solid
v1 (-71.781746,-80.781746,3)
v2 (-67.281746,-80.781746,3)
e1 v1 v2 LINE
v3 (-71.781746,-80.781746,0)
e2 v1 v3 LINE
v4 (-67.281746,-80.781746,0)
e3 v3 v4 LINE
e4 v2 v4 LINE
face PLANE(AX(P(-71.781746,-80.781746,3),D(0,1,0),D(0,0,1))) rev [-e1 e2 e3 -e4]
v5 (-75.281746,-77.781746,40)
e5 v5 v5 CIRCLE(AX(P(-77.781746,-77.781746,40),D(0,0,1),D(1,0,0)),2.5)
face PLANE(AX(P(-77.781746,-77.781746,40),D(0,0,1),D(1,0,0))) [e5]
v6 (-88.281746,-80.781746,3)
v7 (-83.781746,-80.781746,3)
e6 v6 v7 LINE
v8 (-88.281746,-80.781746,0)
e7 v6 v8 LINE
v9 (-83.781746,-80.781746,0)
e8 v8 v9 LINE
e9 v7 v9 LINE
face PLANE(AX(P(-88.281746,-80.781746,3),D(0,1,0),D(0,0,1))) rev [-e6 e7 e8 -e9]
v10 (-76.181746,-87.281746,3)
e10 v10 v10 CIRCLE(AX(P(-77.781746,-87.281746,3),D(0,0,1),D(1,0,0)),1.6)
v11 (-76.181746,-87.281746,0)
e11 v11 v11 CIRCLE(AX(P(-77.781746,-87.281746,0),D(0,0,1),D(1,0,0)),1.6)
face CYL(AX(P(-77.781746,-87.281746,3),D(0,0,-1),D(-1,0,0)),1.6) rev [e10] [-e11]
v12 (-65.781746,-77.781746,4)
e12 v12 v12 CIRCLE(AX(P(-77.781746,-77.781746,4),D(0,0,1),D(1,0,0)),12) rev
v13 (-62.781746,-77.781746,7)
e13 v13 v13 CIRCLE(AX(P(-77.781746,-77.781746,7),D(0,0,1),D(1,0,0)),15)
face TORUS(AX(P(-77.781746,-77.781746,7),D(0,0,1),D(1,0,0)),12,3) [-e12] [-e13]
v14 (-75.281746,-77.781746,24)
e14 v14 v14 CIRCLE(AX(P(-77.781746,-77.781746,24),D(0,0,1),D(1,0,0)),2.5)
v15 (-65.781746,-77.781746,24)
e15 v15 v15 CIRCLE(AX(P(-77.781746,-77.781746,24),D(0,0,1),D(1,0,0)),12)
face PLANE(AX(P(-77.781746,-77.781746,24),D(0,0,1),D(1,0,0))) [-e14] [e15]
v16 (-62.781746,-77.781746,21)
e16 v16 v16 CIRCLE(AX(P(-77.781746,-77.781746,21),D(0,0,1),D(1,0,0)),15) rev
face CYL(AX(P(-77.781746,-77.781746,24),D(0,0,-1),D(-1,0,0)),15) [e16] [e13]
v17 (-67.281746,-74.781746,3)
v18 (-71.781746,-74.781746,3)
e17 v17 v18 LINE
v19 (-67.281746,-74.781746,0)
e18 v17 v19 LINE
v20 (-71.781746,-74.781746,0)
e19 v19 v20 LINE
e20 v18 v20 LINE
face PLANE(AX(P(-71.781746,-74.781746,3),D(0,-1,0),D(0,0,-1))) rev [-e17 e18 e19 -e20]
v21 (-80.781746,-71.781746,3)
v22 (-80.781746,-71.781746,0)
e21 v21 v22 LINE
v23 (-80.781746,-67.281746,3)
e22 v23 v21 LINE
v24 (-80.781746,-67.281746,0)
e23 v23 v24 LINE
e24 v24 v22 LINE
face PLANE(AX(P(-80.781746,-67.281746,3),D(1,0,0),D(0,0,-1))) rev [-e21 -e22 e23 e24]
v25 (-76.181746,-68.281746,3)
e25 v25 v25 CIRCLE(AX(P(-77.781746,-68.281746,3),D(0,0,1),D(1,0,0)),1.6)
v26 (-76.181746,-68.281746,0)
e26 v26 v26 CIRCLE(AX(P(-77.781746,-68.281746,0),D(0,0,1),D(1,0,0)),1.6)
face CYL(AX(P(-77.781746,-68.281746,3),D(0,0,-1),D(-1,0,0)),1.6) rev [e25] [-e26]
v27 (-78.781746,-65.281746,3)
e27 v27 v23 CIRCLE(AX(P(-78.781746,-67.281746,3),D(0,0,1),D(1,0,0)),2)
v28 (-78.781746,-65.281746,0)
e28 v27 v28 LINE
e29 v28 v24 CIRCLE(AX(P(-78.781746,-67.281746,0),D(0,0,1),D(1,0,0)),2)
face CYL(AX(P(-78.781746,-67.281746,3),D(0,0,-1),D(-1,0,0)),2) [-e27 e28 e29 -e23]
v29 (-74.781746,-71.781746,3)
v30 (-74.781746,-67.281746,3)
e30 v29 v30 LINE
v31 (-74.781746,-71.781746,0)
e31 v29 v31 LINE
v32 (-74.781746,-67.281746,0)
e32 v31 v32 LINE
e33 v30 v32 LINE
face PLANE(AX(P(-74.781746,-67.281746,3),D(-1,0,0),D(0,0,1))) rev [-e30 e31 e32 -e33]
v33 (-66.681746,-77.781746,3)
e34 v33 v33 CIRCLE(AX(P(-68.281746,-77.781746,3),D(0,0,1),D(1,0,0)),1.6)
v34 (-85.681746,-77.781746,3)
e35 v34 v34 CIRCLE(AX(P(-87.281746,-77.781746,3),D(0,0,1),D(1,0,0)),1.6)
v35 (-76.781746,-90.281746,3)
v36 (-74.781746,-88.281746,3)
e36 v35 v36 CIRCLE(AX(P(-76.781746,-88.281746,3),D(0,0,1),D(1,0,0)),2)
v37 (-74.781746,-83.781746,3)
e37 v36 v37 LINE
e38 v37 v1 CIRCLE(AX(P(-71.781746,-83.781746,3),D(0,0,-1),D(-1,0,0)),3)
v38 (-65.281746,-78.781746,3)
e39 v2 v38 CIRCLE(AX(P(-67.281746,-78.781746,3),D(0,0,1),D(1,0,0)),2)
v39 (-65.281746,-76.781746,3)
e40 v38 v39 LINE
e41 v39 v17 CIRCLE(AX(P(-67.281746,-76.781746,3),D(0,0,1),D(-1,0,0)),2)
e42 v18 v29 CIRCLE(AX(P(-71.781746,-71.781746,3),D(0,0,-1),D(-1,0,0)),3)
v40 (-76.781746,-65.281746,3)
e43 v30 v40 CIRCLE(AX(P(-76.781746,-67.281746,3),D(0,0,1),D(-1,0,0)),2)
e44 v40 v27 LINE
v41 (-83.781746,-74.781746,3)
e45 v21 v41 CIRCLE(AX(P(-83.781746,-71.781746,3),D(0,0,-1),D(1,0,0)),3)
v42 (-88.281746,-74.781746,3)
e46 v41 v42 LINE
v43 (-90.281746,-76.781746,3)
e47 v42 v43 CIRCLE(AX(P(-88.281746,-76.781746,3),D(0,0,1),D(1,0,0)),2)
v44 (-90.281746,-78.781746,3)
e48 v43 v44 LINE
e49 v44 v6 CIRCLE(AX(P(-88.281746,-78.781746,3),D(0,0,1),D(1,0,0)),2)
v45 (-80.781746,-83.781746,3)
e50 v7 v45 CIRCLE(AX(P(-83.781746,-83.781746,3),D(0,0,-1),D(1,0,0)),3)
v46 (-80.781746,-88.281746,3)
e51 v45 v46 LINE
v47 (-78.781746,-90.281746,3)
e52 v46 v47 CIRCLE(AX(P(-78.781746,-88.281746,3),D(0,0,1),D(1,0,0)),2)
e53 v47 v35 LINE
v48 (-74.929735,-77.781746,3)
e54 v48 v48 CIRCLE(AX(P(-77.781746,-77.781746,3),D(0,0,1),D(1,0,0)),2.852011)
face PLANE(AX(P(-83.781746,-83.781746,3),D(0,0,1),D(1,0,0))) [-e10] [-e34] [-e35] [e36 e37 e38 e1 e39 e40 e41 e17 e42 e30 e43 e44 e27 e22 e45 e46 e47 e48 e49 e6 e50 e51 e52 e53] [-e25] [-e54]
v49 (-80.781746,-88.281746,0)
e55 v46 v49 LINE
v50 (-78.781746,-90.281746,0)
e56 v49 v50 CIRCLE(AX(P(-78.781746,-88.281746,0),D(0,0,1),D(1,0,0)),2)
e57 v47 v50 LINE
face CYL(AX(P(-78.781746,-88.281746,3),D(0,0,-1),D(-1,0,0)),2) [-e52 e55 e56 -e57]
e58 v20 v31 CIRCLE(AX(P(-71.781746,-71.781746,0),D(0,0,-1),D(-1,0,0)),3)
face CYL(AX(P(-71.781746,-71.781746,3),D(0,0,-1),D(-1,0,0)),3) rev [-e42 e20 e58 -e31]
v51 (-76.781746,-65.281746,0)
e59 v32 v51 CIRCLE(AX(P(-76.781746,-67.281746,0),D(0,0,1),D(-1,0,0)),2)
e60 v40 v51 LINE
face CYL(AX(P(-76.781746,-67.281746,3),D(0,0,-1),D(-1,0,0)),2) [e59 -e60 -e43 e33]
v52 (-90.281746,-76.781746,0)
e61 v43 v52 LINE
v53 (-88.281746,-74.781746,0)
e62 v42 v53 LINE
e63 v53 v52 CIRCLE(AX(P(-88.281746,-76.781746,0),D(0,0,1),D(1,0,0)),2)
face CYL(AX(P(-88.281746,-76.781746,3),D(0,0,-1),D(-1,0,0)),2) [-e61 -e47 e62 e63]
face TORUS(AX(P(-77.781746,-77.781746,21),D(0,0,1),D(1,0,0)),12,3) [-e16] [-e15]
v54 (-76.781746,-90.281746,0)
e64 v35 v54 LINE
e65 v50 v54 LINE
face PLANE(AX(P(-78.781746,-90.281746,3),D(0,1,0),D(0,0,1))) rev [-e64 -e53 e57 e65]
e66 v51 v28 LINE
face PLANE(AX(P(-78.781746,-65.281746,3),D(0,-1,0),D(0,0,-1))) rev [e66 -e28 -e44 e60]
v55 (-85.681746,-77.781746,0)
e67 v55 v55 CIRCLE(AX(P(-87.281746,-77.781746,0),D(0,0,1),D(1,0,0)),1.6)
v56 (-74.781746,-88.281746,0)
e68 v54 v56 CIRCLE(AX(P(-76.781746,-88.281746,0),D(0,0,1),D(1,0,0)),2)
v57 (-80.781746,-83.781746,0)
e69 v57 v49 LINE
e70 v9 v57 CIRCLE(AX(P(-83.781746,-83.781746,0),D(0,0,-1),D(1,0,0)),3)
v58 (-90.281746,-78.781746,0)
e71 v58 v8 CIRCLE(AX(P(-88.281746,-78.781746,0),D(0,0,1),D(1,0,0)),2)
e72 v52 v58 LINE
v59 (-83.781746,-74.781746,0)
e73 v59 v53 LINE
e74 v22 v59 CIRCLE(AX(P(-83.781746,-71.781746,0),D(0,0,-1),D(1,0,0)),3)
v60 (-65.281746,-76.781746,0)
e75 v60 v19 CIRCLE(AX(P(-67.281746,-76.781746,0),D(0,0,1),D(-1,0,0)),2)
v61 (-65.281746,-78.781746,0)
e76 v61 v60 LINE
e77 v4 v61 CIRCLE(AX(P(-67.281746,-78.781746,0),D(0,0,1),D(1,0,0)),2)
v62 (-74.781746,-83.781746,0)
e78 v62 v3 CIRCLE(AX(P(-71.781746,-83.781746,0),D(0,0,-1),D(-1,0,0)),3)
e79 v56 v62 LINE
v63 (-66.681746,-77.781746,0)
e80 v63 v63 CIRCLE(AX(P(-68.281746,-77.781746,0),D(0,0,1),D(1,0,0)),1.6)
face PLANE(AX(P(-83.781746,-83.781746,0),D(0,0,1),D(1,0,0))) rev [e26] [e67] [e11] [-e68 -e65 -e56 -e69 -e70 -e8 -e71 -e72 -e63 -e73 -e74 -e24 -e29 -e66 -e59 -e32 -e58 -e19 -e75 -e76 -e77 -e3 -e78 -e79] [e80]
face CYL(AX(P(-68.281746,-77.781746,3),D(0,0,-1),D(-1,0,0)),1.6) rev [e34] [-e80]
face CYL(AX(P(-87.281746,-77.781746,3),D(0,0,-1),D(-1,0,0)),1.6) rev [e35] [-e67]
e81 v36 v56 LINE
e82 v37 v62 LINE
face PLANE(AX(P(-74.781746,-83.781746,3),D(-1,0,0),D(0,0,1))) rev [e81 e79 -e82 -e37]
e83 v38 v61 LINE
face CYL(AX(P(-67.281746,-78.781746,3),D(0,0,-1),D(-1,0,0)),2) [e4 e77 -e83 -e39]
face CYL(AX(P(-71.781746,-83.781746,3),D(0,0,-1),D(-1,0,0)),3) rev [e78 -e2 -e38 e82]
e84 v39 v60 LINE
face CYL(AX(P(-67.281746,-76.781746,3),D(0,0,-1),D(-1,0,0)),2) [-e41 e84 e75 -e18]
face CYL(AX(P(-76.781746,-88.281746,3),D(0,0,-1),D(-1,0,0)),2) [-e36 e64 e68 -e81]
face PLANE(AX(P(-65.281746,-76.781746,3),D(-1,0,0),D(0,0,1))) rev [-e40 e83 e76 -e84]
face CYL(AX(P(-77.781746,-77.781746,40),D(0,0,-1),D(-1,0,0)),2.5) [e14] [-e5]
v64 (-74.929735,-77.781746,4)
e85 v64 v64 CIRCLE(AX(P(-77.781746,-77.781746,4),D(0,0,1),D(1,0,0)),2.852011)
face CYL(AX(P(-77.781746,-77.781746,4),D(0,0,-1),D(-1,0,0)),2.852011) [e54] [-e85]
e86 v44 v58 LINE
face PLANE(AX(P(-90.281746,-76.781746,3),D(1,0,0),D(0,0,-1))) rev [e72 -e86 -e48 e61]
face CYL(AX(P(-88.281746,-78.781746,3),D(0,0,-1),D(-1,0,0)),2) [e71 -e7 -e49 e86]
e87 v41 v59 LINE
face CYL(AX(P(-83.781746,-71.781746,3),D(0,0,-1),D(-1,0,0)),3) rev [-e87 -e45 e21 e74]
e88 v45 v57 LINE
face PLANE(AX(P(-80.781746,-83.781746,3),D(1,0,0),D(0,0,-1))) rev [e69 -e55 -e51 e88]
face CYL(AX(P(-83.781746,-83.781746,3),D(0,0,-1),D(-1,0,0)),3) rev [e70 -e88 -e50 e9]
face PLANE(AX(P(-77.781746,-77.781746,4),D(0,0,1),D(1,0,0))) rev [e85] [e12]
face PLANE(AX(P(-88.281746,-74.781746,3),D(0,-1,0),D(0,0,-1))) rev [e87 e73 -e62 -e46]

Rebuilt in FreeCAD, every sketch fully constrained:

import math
import FreeCAD as App
import Part
import Sketcher

V = App.Vector


def edges_at(feature, points):
    """Names of the edges that pass closest to the given points."""
    edges = feature.Shape.Edges
    near = lambda p: min(range(len(edges)), key=lambda i: edges[i].distToShape(Part.Vertex(*p))[0])
    return sorted({f"Edge{near(p) + 1}" for p in points})

doc = App.newDocument("Part")
body = doc.addObject("PartDesign::Body", "Body")

# Sketch on XY plane
sketch1 = body.newObject("Sketcher::SketchObject", "Sketch")
sketch1.AttachmentSupport = (doc.getObject("XY_Plane"), [""])
sketch1.MapMode = "FlatFace"
sketch1.addGeometry(Part.LineSegment(V(-67.3, -74.8, 0), V(-71.8, -74.8, 0)), False)
sketch1.addGeometry(Part.ArcOfCircle(Part.Circle(V(-71.8, -71.8, 0), V(0, 0, 1), 3), math.radians(-180), math.radians(-90)), False)
sketch1.addGeometry(Part.LineSegment(V(-74.8, -71.8, 0), V(-74.8, -67.3, 0)), False)
sketch1.addGeometry(Part.ArcOfCircle(Part.Circle(V(-76.8, -67.3, 0), V(0, 0, 1), 2), math.radians(0), math.radians(90)), False)
sketch1.addGeometry(Part.LineSegment(V(-76.8, -65.3, 0), V(-78.8, -65.3, 0)), False)
sketch1.addGeometry(Part.ArcOfCircle(Part.Circle(V(-78.8, -67.3, 0), V(0, 0, 1), 2), math.radians(90), math.radians(180)), False)
sketch1.addGeometry(Part.LineSegment(V(-80.8, -67.3, 0), V(-80.8, -71.8, 0)), False)
sketch1.addGeometry(Part.ArcOfCircle(Part.Circle(V(-83.8, -71.8, 0), V(0, 0, 1), 3), math.radians(-90), math.radians(0)), False)
sketch1.addGeometry(Part.LineSegment(V(-83.8, -74.8, 0), V(-88.3, -74.8, 0)), False)
sketch1.addGeometry(Part.ArcOfCircle(Part.Circle(V(-88.3, -76.8, 0), V(0, 0, 1), 2), math.radians(90), math.radians(180)), False)
sketch1.addGeometry(Part.LineSegment(V(-90.3, -76.8, 0), V(-90.3, -78.8, 0)), False)
sketch1.addGeometry(Part.ArcOfCircle(Part.Circle(V(-88.3, -78.8, 0), V(0, 0, 1), 2), math.radians(-180), math.radians(-90)), False)
sketch1.addGeometry(Part.LineSegment(V(-88.3, -80.8, 0), V(-83.8, -80.8, 0)), False)
sketch1.addGeometry(Part.ArcOfCircle(Part.Circle(V(-83.8, -83.8, 0), V(0, 0, 1), 3), math.radians(0), math.radians(90)), False)
sketch1.addGeometry(Part.LineSegment(V(-80.8, -83.8, 0), V(-80.8, -88.3, 0)), False)
sketch1.addGeometry(Part.ArcOfCircle(Part.Circle(V(-78.8, -88.3, 0), V(0, 0, 1), 2), math.radians(-180), math.radians(-90)), False)
sketch1.addGeometry(Part.LineSegment(V(-78.8, -90.3, 0), V(-76.8, -90.3, 0)), False)
sketch1.addGeometry(Part.ArcOfCircle(Part.Circle(V(-76.8, -88.3, 0), V(0, 0, 1), 2), math.radians(-90), math.radians(0)), False)
sketch1.addGeometry(Part.LineSegment(V(-74.8, -88.3, 0), V(-74.8, -83.8, 0)), False)
sketch1.addGeometry(Part.ArcOfCircle(Part.Circle(V(-71.8, -83.8, 0), V(0, 0, 1), 3), math.radians(90), math.radians(180)), False)
sketch1.addGeometry(Part.LineSegment(V(-71.8, -80.8, 0), V(-67.3, -80.8, 0)), False)
sketch1.addGeometry(Part.ArcOfCircle(Part.Circle(V(-67.3, -78.8, 0), V(0, 0, 1), 2), math.radians(-90), math.radians(0)), False)
sketch1.addGeometry(Part.LineSegment(V(-65.3, -78.8, 0), V(-65.3, -76.8, 0)), False)
sketch1.addGeometry(Part.ArcOfCircle(Part.Circle(V(-67.3, -76.8, 0), V(0, 0, 1), 2), math.radians(0), math.radians(90)), False)
sketch1.addGeometry(Part.Circle(V(-77.8, -87.3, 0), V(0, 0, 1), 1.6), False)
sketch1.addGeometry(Part.Circle(V(-68.3, -77.8, 0), V(0, 0, 1), 1.6), False)
sketch1.addGeometry(Part.Circle(V(-87.3, -77.8, 0), V(0, 0, 1), 1.6), False)
sketch1.addGeometry(Part.Circle(V(-77.8, -68.3, 0), V(0, 0, 1), 1.6), False)
sketch1.addConstraint(Sketcher.Constraint("Tangent", 0, 2, 1, 2))
sketch1.addConstraint(Sketcher.Constraint("Tangent", 1, 1, 2, 1))
sketch1.addConstraint(Sketcher.Constraint("Tangent", 2, 2, 3, 1))
sketch1.addConstraint(Sketcher.Constraint("Tangent", 3, 2, 4, 1))
sketch1.addConstraint(Sketcher.Constraint("Tangent", 4, 2, 5, 1))
sketch1.addConstraint(Sketcher.Constraint("Tangent", 5, 2, 6, 1))
sketch1.addConstraint(Sketcher.Constraint("Tangent", 6, 2, 7, 2))
sketch1.addConstraint(Sketcher.Constraint("Tangent", 7, 1, 8, 1))
sketch1.addConstraint(Sketcher.Constraint("Tangent", 8, 2, 9, 1))
sketch1.addConstraint(Sketcher.Constraint("Tangent", 9, 2, 10, 1))
sketch1.addConstraint(Sketcher.Constraint("Tangent", 10, 2, 11, 1))
sketch1.addConstraint(Sketcher.Constraint("Tangent", 11, 2, 12, 1))
sketch1.addConstraint(Sketcher.Constraint("Tangent", 12, 2, 13, 2))
sketch1.addConstraint(Sketcher.Constraint("Tangent", 13, 1, 14, 1))
sketch1.addConstraint(Sketcher.Constraint("Tangent", 14, 2, 15, 1))
sketch1.addConstraint(Sketcher.Constraint("Tangent", 15, 2, 16, 1))
sketch1.addConstraint(Sketcher.Constraint("Tangent", 16, 2, 17, 1))
sketch1.addConstraint(Sketcher.Constraint("Tangent", 17, 2, 18, 1))
sketch1.addConstraint(Sketcher.Constraint("Tangent", 18, 2, 19, 2))
sketch1.addConstraint(Sketcher.Constraint("Tangent", 19, 1, 20, 1))
sketch1.addConstraint(Sketcher.Constraint("Tangent", 20, 2, 21, 1))
sketch1.addConstraint(Sketcher.Constraint("Tangent", 21, 2, 22, 1))
sketch1.addConstraint(Sketcher.Constraint("Tangent", 22, 2, 23, 1))
sketch1.addConstraint(Sketcher.Constraint("Tangent", 23, 2, 0, 1))
sketch1.addConstraint(Sketcher.Constraint("Horizontal", 0))
sketch1.addConstraint(Sketcher.Constraint("Vertical", 2))
sketch1.addConstraint(Sketcher.Constraint("Horizontal", 4))
sketch1.addConstraint(Sketcher.Constraint("Vertical", 6))
sketch1.addConstraint(Sketcher.Constraint("Horizontal", 8))
sketch1.addConstraint(Sketcher.Constraint("Vertical", 10))
sketch1.addConstraint(Sketcher.Constraint("Horizontal", 12))
sketch1.addConstraint(Sketcher.Constraint("Vertical", 14))
sketch1.addConstraint(Sketcher.Constraint("Horizontal", 16))
sketch1.addConstraint(Sketcher.Constraint("Vertical", 18))
sketch1.addConstraint(Sketcher.Constraint("Horizontal", 20))
sketch1.addConstraint(Sketcher.Constraint("Vertical", 22))
sketch1.addConstraint(Sketcher.Constraint("Equal", 3, 5))
sketch1.addConstraint(Sketcher.Constraint("Equal", 1, 7))
sketch1.addConstraint(Sketcher.Constraint("Equal", 5, 9))
sketch1.addConstraint(Sketcher.Constraint("Equal", 9, 11))
sketch1.addConstraint(Sketcher.Constraint("Equal", 7, 13))
sketch1.addConstraint(Sketcher.Constraint("Equal", 11, 15))
sketch1.addConstraint(Sketcher.Constraint("Equal", 15, 17))
sketch1.addConstraint(Sketcher.Constraint("Equal", 13, 19))
sketch1.addConstraint(Sketcher.Constraint("Equal", 17, 21))
sketch1.addConstraint(Sketcher.Constraint("Equal", 21, 23))
sketch1.addConstraint(Sketcher.Constraint("Equal", 24, 25))
sketch1.addConstraint(Sketcher.Constraint("Equal", 25, 26))
sketch1.addConstraint(Sketcher.Constraint("Equal", 26, 27))
sketch1.addConstraint(Sketcher.Constraint("Horizontal", 1, 3, 7, 3))
sketch1.addConstraint(Sketcher.Constraint("Horizontal", 13, 3, 19, 3))
sketch1.addConstraint(Sketcher.Constraint("Horizontal", 25, 3, 26, 3))
sketch1.addConstraint(Sketcher.Constraint("Vertical", 7, 3, 13, 3))
sketch1.addConstraint(Sketcher.Constraint("Vertical", 3, 3, 17, 3))
sketch1.addConstraint(Sketcher.Constraint("Vertical", 24, 3, 27, 3))
sketch1.addConstraint(Sketcher.Constraint("Equal", 0, 8))
sketch1.addConstraint(Sketcher.Constraint("Equal", 20, 2))
sketch1.addConstraint(Sketcher.Constraint("Equal", 16, 10))
sketch1.addConstraint(Sketcher.Constraint("Equal", 6, 14))
sketch1.addConstraint(Sketcher.Constraint("Radius", 1, 3.0))
sketch1.addConstraint(Sketcher.Constraint("Radius", 3, 2.0))
sketch1.addConstraint(Sketcher.Constraint("Diameter", 24, 3.2))
sketch1.addConstraint(Sketcher.Constraint("DistanceX", 4, 2, 4, 1, 2.0))
sketch1.addConstraint(Sketcher.Constraint("DistanceX", 0, 2, 0, 1, 4.5))
sketch1.addConstraint(Sketcher.Constraint("DistanceX", 15, 3, 24, 3, 1.0))
sketch1.addConstraint(Sketcher.Constraint("DistanceY", 15, 3, 24, 3, 1.0))
sketch1.addConstraint(Sketcher.Constraint("DistanceX", 25, 3, 21, 3, 1.0))
sketch1.addConstraint(Sketcher.Constraint("DistanceY", 21, 3, 25, 3, 1.0))
sketch1.addConstraint(Sketcher.Constraint("DistanceX", 11, 3, 26, 3, 1.0))
sketch1.addConstraint(Sketcher.Constraint("DistanceY", 27, 3, 5, 3, 1.0))
sketch1.addConstraint(Sketcher.Constraint("DistanceX", 1, 3, -1, 1, 71.781746))
sketch1.addConstraint(Sketcher.Constraint("DistanceY", 1, 3, -1, 1, 71.781746))
pad1 = body.newObject("PartDesign::Pad", "Pad")
pad1.Profile = sketch1
pad1.Length = 3

# Sketch on XY plane
sketch2 = body.newObject("Sketcher::SketchObject", "Sketch001")
sketch2.AttachmentSupport = (doc.getObject("XY_Plane"), [""])
sketch2.MapMode = "FlatFace"
sketch2.AttachmentOffset = App.Placement(V(0, 0, 3), App.Rotation())
sketch2.addGeometry(Part.Circle(V(-77.8, -77.8, 0), V(0, 0, 1), 2.9), False)
sketch2.addConstraint(Sketcher.Constraint("Diameter", 0, 5.704023))
sketch2.addConstraint(Sketcher.Constraint("DistanceX", 0, 3, -1, 1, 77.781746))
sketch2.addConstraint(Sketcher.Constraint("DistanceY", 0, 3, -1, 1, 77.781746))
pad2 = body.newObject("PartDesign::Pad", "Pad001")
pad2.Profile = sketch2
pad2.Length = 1

# Sketch on XY plane
sketch3 = body.newObject("Sketcher::SketchObject", "Sketch002")
sketch3.AttachmentSupport = (doc.getObject("XY_Plane"), [""])
sketch3.MapMode = "FlatFace"
sketch3.AttachmentOffset = App.Placement(V(0, 0, 4), App.Rotation())
sketch3.addGeometry(Part.Circle(V(-78, -78, 0), V(0, 0, 1), 15), False)
sketch3.addConstraint(Sketcher.Constraint("Diameter", 0, 30.0))
sketch3.addConstraint(Sketcher.Constraint("DistanceX", 0, 3, -1, 1, 77.781746))
sketch3.addConstraint(Sketcher.Constraint("DistanceY", 0, 3, -1, 1, 77.781746))
pad3 = body.newObject("PartDesign::Pad", "Pad002")
pad3.Profile = sketch3
pad3.Length = 20

# Sketch on XY plane
sketch4 = body.newObject("Sketcher::SketchObject", "Sketch003")
sketch4.AttachmentSupport = (doc.getObject("XY_Plane"), [""])
sketch4.MapMode = "FlatFace"
sketch4.AttachmentOffset = App.Placement(V(0, 0, 24), App.Rotation())
sketch4.addGeometry(Part.Circle(V(-77.8, -77.8, 0), V(0, 0, 1), 2.5), False)
sketch4.addConstraint(Sketcher.Constraint("Diameter", 0, 5.0))
sketch4.addConstraint(Sketcher.Constraint("DistanceX", 0, 3, -1, 1, 77.781746))
sketch4.addConstraint(Sketcher.Constraint("DistanceY", 0, 3, -1, 1, 77.781746))
pad4 = body.newObject("PartDesign::Pad", "Pad003")
pad4.Profile = sketch4
pad4.Length = 16
doc.recompute()

fillet = body.newObject("PartDesign::Fillet", "Fillet")
fillet.Base = (pad4, edges_at(pad4, [(-92.782, -77.782, 4), (-92.782, -77.782, 24)]))
fillet.Radius = 3

doc.recompute()
